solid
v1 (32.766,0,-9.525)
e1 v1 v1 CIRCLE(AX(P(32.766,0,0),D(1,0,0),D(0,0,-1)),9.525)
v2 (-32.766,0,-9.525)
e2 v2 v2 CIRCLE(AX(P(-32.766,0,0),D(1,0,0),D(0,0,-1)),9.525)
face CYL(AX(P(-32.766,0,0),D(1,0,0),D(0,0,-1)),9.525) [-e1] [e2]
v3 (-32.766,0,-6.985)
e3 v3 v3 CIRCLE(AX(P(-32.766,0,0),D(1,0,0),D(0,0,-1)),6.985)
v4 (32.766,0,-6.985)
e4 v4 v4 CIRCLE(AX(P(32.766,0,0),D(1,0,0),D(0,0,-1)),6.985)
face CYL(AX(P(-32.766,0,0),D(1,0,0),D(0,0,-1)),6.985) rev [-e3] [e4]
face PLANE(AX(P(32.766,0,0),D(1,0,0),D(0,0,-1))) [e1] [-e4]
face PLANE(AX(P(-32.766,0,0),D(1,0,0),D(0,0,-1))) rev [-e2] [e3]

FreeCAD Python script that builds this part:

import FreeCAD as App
import Part
import Sketcher

V = App.Vector
Q = App.Units.Quantity

doc = App.newDocument("Part")
body = doc.addObject("PartDesign::Body", "Body")

# Sketch on YZ plane
sketch1 = body.newObject("Sketcher::SketchObject", "Sketch")
sketch1.AttachmentSupport = (doc.getObject("YZ_Plane"), [""])
sketch1.MapMode = "FlatFace"
sketch1.AttachmentOffset = App.Placement(V(0, 0, -1.29 * 25.4), App.Rotation())
sketch1.addGeometry([
    Part.Circle(V(0, 0, 0), V(0, 0, 1), 10),
    Part.Circle(V(0, 0, 0), V(0, 0, 1), 7),
], False)
sketch1.addConstraint([
    Sketcher.Constraint("Coincident", 0, 3, -1, 1),
    Sketcher.Constraint("Coincident", 1, 3, -1, 1),
    Sketcher.Constraint("Diameter", 0, Q("0.75 in")),
    Sketcher.Constraint("Diameter", 1, Q("0.55 in")),
])

# Sketch on XY plane
sketch2 = body.newObject("Sketcher::SketchObject", "Sketch001")
sketch2.AttachmentSupport = (doc.getObject("XY_Plane"), [""])
sketch2.MapMode = "FlatFace"
sketch2.addGeometry(Part.LineSegment(V(-33, 0, 0), V(33, 0, 0)), False)
sketch2.addConstraint([
    Sketcher.Constraint("Horizontal", 0),
    Sketcher.Constraint("Symmetric", 0, 1, 0, 2, -1, 1),
    Sketcher.Constraint("DistanceX", 0, 1, 0, 2, Q("2.58 in")),
])
doc.recompute()

additivepipe = body.newObject("PartDesign::AdditivePipe", "AdditivePipe")
additivepipe.Profile = sketch1
additivepipe.Spine = (sketch2, ["Edge1"])

doc.recompute()
